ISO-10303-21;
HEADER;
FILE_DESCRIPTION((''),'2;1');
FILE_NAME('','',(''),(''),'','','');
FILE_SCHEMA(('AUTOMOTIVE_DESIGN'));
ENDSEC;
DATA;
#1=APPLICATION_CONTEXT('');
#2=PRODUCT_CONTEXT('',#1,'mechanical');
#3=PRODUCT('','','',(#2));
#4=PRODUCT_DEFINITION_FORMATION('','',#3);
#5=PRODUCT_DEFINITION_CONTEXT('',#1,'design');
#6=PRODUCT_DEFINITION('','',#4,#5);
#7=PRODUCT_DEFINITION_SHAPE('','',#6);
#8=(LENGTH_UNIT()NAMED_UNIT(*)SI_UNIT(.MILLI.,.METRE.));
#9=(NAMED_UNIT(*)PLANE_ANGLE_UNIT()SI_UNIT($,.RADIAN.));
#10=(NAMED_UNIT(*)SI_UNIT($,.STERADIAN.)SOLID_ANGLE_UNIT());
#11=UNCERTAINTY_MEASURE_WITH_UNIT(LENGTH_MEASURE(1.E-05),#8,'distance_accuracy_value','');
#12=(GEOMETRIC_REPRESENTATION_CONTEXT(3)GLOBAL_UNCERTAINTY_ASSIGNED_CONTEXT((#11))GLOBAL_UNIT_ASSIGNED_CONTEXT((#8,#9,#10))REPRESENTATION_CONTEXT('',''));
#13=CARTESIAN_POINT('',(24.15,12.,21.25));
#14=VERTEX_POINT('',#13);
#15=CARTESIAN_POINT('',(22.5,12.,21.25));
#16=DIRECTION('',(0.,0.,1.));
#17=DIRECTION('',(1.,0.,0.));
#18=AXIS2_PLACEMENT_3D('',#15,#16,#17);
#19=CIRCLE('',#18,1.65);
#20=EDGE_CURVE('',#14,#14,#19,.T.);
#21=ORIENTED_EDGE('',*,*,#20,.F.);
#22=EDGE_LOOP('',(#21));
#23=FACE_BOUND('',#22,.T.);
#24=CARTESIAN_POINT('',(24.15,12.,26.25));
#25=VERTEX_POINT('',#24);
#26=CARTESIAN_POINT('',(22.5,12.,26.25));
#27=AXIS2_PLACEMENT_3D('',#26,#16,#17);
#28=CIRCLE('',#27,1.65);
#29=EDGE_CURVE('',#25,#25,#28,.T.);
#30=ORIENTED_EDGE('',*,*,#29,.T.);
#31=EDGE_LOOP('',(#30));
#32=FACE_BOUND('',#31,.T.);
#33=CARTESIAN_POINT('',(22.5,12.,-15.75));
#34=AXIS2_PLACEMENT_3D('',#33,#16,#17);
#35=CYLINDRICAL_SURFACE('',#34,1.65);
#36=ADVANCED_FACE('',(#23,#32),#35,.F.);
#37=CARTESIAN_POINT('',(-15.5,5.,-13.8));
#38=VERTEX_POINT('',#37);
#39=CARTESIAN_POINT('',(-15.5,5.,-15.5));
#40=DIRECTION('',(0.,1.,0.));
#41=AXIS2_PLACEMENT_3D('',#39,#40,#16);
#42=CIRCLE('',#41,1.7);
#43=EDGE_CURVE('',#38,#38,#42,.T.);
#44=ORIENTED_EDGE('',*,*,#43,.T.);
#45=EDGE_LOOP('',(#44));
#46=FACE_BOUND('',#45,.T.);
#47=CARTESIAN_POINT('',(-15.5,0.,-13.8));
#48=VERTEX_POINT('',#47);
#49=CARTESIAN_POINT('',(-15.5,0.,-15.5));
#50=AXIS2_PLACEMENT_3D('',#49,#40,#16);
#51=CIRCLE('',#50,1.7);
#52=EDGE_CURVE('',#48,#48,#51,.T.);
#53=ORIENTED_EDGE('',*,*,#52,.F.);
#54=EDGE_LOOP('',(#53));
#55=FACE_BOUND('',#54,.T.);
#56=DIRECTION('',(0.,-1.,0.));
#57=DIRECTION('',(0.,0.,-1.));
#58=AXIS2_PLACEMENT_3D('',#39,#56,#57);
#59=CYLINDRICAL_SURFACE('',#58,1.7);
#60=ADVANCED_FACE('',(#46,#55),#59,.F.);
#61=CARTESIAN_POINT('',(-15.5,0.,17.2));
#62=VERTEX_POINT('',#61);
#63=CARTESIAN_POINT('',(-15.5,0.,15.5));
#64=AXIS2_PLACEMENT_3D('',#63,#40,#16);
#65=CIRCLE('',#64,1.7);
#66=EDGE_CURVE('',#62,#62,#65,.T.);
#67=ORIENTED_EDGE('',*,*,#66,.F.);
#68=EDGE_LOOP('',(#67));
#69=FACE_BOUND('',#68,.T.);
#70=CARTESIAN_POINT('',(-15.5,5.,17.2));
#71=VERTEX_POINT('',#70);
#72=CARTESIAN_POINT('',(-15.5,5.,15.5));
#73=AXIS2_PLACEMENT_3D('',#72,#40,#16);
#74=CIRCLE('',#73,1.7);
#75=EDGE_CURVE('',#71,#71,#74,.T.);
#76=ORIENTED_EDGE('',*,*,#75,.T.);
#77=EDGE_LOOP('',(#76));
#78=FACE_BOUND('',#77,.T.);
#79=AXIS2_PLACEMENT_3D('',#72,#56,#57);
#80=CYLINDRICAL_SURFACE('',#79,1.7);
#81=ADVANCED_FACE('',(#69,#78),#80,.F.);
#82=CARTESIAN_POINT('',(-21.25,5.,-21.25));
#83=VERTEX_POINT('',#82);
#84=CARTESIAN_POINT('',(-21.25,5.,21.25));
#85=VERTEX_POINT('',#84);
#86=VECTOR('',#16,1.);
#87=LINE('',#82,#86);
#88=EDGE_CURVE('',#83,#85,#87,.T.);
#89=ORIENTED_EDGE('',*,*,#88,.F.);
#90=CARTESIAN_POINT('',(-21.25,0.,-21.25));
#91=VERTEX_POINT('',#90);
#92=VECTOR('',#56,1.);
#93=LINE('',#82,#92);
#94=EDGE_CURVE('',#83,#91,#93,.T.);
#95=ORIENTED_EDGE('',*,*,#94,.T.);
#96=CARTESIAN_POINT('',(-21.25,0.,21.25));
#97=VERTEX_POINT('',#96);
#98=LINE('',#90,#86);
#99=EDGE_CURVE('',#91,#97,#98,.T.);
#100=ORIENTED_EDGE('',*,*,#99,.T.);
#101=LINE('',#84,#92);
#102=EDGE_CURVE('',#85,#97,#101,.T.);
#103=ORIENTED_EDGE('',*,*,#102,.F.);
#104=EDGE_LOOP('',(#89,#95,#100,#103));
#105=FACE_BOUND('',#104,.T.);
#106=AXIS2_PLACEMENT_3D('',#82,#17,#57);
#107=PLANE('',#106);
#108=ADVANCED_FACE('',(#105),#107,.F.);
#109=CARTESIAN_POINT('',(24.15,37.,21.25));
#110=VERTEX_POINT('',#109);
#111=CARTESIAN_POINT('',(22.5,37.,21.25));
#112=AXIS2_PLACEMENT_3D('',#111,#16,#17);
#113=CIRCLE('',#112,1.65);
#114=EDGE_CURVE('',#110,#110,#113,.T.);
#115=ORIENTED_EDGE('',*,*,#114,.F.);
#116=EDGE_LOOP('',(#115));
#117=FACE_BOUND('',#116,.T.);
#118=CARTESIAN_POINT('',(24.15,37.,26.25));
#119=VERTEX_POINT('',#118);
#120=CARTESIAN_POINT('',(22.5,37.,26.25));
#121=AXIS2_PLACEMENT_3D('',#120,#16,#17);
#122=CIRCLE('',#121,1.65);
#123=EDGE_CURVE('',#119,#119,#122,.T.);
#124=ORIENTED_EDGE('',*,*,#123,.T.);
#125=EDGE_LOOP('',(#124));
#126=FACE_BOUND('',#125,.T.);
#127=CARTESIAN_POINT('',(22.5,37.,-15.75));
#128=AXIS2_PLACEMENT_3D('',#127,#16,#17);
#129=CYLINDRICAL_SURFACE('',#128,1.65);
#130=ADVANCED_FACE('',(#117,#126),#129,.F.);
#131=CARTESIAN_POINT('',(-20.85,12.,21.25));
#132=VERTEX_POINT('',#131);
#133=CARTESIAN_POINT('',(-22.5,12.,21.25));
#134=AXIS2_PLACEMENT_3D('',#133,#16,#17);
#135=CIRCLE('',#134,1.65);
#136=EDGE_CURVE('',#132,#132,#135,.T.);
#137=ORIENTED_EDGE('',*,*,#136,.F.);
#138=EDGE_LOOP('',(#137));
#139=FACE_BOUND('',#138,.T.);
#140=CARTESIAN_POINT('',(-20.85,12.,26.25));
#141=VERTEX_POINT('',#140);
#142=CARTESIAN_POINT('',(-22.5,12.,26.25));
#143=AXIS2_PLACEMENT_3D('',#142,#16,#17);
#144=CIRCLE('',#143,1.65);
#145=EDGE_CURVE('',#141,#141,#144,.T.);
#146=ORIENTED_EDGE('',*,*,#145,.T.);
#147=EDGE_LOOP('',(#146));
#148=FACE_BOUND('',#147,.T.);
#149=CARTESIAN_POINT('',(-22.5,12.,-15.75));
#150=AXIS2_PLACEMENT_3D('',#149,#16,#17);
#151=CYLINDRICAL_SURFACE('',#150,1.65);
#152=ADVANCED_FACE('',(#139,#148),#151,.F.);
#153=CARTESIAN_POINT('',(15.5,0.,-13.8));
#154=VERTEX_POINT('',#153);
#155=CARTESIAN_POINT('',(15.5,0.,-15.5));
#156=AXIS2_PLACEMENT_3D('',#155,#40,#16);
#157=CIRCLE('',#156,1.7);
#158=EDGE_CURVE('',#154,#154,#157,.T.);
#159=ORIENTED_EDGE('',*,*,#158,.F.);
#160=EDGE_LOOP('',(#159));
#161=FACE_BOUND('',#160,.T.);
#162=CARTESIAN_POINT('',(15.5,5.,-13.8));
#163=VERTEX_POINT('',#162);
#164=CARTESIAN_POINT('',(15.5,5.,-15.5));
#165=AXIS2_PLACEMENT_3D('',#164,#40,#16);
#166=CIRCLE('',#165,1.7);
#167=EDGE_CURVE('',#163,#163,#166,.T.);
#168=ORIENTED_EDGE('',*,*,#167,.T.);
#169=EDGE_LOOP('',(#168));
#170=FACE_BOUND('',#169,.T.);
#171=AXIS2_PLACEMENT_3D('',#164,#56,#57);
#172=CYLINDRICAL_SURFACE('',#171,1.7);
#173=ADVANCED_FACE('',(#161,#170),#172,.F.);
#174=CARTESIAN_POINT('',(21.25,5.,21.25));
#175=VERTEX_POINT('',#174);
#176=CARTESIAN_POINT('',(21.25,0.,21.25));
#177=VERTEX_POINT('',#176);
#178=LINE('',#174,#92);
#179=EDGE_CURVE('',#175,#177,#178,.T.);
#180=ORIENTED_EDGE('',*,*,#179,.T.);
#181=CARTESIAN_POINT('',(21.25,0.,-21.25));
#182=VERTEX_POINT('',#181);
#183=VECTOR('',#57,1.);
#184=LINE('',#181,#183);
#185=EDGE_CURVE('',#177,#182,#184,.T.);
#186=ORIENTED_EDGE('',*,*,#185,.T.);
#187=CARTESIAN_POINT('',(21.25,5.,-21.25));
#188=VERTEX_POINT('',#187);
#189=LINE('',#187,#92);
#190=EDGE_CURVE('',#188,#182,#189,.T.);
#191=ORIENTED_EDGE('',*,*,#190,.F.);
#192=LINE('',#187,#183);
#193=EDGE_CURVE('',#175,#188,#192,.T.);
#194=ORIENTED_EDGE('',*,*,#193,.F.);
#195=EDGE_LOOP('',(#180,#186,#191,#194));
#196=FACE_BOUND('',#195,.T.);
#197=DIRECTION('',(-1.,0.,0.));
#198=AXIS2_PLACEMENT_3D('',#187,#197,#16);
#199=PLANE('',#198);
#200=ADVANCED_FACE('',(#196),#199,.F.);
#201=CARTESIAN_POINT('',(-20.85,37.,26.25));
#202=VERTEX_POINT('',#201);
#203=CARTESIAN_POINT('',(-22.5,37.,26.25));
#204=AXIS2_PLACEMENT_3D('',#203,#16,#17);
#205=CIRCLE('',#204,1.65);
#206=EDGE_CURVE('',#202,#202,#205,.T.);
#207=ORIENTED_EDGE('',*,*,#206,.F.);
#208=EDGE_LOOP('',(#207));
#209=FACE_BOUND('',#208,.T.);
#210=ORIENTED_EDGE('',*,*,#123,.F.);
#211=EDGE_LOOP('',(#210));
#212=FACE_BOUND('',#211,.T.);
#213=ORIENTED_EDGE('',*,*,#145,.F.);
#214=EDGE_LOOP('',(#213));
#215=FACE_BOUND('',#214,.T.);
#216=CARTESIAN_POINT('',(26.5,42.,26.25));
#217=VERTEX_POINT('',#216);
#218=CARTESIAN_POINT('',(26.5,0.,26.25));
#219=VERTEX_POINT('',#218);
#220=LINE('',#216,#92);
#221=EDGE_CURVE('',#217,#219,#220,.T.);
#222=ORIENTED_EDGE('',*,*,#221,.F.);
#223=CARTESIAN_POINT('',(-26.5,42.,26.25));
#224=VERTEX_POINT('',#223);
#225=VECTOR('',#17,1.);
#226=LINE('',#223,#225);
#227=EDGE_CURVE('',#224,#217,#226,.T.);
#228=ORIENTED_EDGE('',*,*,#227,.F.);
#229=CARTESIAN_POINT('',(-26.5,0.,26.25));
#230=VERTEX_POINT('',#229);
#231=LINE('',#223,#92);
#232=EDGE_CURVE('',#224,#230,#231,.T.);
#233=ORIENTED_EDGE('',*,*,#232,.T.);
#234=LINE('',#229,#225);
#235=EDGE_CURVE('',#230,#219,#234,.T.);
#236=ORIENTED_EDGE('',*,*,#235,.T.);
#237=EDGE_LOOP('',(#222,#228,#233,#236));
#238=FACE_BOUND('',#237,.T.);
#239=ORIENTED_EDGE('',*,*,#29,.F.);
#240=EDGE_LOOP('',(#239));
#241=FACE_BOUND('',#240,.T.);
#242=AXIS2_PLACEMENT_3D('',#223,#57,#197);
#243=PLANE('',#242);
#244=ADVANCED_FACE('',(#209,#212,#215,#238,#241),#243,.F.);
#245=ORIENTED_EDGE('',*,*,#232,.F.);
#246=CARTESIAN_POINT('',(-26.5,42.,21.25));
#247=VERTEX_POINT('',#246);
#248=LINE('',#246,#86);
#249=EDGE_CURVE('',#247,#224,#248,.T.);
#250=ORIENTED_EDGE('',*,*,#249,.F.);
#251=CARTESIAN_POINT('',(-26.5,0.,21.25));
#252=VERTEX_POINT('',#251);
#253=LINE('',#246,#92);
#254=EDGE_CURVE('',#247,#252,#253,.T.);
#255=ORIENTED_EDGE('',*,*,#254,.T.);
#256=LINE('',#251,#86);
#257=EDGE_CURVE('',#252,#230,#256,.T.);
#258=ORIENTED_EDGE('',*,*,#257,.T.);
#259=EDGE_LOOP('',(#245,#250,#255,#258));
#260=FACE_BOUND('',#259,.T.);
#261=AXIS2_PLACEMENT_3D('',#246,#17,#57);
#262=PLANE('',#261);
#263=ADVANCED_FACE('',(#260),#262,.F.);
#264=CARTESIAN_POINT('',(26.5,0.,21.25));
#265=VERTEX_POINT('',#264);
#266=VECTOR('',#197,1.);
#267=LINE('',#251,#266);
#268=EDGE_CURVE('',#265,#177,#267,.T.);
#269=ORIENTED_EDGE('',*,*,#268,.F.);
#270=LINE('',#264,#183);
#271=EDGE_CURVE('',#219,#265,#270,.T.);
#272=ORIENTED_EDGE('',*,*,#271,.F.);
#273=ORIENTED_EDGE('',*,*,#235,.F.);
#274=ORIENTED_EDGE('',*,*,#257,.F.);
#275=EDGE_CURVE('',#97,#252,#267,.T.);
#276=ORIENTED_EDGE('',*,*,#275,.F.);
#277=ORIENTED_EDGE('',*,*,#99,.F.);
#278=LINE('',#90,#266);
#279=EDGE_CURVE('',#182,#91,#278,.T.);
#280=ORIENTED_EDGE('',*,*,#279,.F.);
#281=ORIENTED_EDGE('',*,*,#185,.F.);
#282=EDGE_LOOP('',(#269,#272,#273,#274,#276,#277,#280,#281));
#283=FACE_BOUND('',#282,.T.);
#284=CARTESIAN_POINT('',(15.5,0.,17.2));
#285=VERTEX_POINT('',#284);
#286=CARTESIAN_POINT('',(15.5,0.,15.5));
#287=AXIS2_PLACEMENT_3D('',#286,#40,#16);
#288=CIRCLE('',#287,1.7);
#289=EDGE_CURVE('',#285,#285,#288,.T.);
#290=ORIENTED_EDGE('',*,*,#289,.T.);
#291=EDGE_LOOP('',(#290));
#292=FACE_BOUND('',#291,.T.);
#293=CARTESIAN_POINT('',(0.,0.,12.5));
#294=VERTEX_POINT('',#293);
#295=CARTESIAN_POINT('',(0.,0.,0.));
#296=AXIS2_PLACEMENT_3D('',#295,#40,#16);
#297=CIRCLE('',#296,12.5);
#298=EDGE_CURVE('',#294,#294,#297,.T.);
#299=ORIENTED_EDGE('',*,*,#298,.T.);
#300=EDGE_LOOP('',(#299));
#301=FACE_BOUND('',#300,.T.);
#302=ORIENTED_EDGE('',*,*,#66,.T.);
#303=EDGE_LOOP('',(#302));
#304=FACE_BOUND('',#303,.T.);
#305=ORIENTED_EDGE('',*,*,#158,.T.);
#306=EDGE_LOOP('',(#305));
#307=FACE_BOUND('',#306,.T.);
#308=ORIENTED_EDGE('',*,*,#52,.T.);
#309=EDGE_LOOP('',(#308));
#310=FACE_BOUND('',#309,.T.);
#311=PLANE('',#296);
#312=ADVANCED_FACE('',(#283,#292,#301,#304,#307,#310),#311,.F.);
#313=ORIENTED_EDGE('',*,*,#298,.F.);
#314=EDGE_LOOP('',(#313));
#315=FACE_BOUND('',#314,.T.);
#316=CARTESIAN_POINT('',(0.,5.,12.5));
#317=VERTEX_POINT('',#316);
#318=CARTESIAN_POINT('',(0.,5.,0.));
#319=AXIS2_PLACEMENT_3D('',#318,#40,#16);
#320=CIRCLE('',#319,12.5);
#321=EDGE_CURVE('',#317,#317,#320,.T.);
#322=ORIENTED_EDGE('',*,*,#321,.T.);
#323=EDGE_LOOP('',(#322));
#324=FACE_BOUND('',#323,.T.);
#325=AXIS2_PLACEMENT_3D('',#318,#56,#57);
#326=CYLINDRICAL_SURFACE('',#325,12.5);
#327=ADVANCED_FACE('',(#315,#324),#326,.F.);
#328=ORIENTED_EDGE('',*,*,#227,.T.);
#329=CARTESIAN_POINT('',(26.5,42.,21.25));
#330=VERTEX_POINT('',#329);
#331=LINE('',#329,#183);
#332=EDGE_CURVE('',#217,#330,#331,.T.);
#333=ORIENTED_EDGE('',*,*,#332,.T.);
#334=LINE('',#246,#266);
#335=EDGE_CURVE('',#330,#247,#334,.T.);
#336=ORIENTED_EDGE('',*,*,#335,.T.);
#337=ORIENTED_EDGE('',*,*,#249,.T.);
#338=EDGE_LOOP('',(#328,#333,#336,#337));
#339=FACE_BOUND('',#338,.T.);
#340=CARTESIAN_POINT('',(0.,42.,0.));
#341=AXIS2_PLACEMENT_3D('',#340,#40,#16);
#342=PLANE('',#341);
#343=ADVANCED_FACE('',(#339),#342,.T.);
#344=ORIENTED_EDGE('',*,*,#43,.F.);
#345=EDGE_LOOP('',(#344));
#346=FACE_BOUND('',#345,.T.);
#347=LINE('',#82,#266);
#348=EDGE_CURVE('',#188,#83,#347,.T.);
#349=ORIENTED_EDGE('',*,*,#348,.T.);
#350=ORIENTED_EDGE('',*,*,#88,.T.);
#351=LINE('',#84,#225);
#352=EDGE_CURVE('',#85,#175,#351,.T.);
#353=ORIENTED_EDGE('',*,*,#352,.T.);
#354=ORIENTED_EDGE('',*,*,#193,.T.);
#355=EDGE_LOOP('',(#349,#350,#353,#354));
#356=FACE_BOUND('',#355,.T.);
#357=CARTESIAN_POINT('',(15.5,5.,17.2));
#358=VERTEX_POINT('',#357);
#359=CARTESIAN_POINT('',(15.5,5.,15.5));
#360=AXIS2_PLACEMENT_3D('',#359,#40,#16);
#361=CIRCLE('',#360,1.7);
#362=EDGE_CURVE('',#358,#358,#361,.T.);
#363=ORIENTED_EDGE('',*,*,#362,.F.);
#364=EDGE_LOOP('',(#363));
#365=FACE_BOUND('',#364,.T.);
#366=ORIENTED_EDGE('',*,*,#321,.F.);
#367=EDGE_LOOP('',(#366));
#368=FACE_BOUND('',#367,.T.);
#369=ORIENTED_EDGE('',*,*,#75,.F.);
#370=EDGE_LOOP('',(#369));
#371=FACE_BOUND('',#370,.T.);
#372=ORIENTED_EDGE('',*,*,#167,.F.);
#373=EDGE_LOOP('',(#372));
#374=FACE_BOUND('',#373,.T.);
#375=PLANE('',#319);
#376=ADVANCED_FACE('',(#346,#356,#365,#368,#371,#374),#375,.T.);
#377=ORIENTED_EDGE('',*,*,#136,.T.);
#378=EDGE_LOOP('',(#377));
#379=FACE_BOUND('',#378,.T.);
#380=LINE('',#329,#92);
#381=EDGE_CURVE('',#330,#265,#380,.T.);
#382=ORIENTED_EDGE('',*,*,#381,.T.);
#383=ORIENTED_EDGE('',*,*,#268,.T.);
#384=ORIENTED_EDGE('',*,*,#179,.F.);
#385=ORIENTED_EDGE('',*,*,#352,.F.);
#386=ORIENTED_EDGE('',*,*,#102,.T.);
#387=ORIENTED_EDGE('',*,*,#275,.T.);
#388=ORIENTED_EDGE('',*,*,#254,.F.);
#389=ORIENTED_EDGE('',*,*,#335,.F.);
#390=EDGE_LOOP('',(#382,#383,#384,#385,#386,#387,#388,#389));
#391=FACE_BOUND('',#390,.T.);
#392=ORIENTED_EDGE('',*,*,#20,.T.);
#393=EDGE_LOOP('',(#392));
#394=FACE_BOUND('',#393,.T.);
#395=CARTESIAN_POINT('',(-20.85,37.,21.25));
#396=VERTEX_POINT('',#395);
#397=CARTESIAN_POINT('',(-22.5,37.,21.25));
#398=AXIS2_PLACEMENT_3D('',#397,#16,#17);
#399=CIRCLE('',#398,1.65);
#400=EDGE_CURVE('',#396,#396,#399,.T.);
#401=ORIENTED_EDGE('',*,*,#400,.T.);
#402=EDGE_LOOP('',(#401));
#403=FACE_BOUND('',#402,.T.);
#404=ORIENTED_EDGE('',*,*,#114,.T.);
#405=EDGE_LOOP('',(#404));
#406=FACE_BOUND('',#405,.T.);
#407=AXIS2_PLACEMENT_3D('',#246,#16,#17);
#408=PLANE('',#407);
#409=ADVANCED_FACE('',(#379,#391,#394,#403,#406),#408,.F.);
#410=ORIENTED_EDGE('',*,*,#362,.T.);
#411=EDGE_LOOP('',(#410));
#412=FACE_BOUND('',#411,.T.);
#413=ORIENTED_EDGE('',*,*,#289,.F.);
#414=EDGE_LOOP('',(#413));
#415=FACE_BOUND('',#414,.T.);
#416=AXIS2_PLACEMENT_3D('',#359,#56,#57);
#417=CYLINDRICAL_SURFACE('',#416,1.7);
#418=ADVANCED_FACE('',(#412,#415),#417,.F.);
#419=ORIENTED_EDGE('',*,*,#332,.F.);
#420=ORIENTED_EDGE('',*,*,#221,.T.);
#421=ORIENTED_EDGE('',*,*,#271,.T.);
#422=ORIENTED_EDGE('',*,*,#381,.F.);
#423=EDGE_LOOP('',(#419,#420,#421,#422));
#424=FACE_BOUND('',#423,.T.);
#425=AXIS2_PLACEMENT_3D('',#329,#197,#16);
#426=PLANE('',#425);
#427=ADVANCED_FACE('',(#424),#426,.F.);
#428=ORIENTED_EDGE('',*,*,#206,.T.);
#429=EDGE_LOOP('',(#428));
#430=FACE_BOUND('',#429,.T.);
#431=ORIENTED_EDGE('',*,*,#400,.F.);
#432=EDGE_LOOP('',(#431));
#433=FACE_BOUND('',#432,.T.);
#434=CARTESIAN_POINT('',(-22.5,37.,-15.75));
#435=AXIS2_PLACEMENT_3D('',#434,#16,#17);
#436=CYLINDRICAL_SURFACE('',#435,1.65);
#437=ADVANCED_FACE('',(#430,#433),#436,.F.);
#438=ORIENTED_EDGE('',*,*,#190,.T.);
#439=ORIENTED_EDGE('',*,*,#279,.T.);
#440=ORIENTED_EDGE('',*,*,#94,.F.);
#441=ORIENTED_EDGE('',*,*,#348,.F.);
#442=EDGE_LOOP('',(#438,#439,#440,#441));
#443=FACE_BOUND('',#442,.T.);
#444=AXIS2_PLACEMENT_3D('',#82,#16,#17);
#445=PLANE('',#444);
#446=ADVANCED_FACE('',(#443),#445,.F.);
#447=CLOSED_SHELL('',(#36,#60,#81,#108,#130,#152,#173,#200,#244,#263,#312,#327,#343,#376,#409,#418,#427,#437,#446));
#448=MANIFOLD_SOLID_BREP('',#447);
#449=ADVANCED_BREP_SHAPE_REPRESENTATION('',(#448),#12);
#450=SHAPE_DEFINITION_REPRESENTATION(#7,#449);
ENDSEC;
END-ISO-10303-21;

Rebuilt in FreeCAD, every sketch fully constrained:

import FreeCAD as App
import Part
import Sketcher


def add_polygon(sketch, points):
    """Adds a closed chain of lines whose ends are joined by coincident constraints."""
    first, n = sketch.GeometryCount, len(points)
    for a, b in zip(points, points[1:] + points[:1]):
        sketch.addGeometry(Part.LineSegment(App.Vector(*a, 0), App.Vector(*b, 0)), False)
    for i in range(n):
        sketch.addConstraint(Sketcher.Constraint("Coincident", first + i, 2, first + (i + 1) % n, 1))

doc = App.newDocument("Part")
body = doc.addObject("PartDesign::Body", "Body")

sketch1 = body.newObject("Sketcher::SketchObject", "Sketch")
sketch1.AttachmentSupport = (doc.getObject("XZ_Plane"), [""])
sketch1.MapMode = "FlatFace"
add_polygon(sketch1, [(-21.2, -21.2), (-21.2, 21.2), (21.2, 21.2), (21.2, -21.2)])
sketch1.addGeometry(Part.Circle(App.Vector(-15.5, 15.5, 0), App.Vector(0, 0, 1), 1.7), False)
sketch1.addGeometry(Part.Circle(App.Vector(15.5, 15.5, 0), App.Vector(0, 0, 1), 1.7), False)
sketch1.addGeometry(Part.Circle(App.Vector(-15.5, -15.5, 0), App.Vector(0, 0, 1), 1.7), False)
sketch1.addGeometry(Part.Circle(App.Vector(0, 0, 0), App.Vector(0, 0, 1), 12.5), False)
sketch1.addGeometry(Part.Circle(App.Vector(15.5, -15.5, 0), App.Vector(0, 0, 1), 1.7), False)
sketch1.addConstraint([
    Sketcher.Constraint("Vertical", 0),
    Sketcher.Constraint("Horizontal", 1),
    Sketcher.Constraint("Vertical", 2),
    Sketcher.Constraint("Horizontal", 3),
    Sketcher.Constraint("Coincident", 7, 3, -1, 1),
    Sketcher.Constraint("Equal", 4, 5),
    Sketcher.Constraint("Equal", 5, 6),
    Sketcher.Constraint("Equal", 6, 8),
    Sketcher.Constraint("Symmetric", 5, 3, 6, 3, -1, 1),
    Sketcher.Constraint("Symmetric", 4, 3, 8, 3, -1, 1),
    Sketcher.Constraint("Symmetric", 0, 2, 2, 2, -1, 1),
    Sketcher.Constraint("Symmetric", 4, 3, 5, 3, -2),
    Sketcher.Constraint("Equal", 3, 0),
    Sketcher.Constraint("Diameter", 7, 25.0),
    Sketcher.Constraint("Diameter", 4, 3.4),
    Sketcher.Constraint("DistanceX", 1, 1, 1, 2, 42.5),
    Sketcher.Constraint("DistanceX", 4, 3, 5, 3, 31.0),
    Sketcher.Constraint("DistanceY", 6, 3, 4, 3, 31.0),
])
pad1 = body.newObject("PartDesign::Pad", "Pad")
pad1.Profile = sketch1
pad1.Length = 5
pad1.Reversed = True

sketch2 = body.newObject("Sketcher::SketchObject", "Sketch001")
sketch2.AttachmentSupport = (doc.getObject("XZ_Plane"), [""])
sketch2.MapMode = "FlatFace"
add_polygon(sketch2, [(-26, 21), (-26, 26), (26, 26), (26, 21)])
sketch2.addConstraint([
    Sketcher.Constraint("Vertical", 0),
    Sketcher.Constraint("Horizontal", 1),
    Sketcher.Constraint("Vertical", 2),
    Sketcher.Constraint("Horizontal", 3),
    Sketcher.Constraint("DistanceX", 1, 1, 1, 2, 53.0),
    Sketcher.Constraint("DistanceY", 0, 1, 0, 2, 5.0),
    Sketcher.Constraint("DistanceX", 0, 2, -1, 1, 26.5),
    Sketcher.Constraint("DistanceY", -1, 1, 0, 2, 26.25),
])
pad2 = body.newObject("PartDesign::Pad", "Pad001")
pad2.Profile = sketch2
pad2.Length = 42
pad2.Reversed = True

sketch3 = body.newObject("Sketcher::SketchObject", "Sketch002")
sketch3.AttachmentSupport = (doc.getObject("XY_Plane"), [""])
sketch3.MapMode = "FlatFace"
sketch3.AttachmentOffset = App.Placement(App.Vector(0, 0, 26.25), App.Rotation())
sketch3.addGeometry([
    Part.Circle(App.Vector(22.5, 37, 0), App.Vector(0, 0, 1), 1.6),
    Part.Circle(App.Vector(22.5, 12, 0), App.Vector(0, 0, 1), 1.6),
    Part.Circle(App.Vector(-22.5, 37, 0), App.Vector(0, 0, 1), 1.6),
    Part.Circle(App.Vector(-22.5, 12, 0), App.Vector(0, 0, 1), 1.6),
], False)
sketch3.addConstraint([
    Sketcher.Constraint("Equal", 0, 1),
    Sketcher.Constraint("Equal", 1, 2),
    Sketcher.Constraint("Equal", 2, 3),
    Sketcher.Constraint("Symmetric", 0, 3, 2, 3, -2),
    Sketcher.Constraint("Symmetric", 1, 3, 3, 3, -2),
    Sketcher.Constraint("Vertical", 0, 3, 1, 3),
    Sketcher.Constraint("Diameter", 0, 3.3),
    Sketcher.Constraint("DistanceY", -1, 1, 0, 3, 37.0),
    Sketcher.Constraint("DistanceY", -1, 1, 1, 3, 12.0),
    Sketcher.Constraint("DistanceX", 2, 3, 0, 3, 45.0),
])
pocket1 = body.newObject("PartDesign::Pocket", "Pocket")
pocket1.Profile = sketch3
pocket1.Length = 42

doc.recompute()
